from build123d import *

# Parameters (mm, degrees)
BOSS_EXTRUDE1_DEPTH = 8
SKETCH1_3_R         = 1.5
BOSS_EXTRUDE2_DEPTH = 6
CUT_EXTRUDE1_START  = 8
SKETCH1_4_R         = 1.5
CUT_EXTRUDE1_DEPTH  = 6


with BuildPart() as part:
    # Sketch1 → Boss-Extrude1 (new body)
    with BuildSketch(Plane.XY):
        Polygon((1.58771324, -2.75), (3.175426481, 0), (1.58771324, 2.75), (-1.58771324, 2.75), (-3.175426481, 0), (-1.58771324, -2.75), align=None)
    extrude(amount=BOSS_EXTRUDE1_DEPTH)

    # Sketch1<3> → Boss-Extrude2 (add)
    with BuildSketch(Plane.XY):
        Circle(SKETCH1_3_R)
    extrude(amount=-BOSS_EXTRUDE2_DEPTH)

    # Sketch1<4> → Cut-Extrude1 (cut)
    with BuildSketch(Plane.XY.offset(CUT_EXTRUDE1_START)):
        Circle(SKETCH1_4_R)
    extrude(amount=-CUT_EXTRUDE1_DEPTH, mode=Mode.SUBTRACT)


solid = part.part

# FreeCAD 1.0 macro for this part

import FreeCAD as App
import Part
import Sketcher
Q = App.Units.Quantity

doc = App.newDocument("Part")
params = doc.addObject("Spreadsheet::Sheet", "Params")
for row, (alias, value) in enumerate([
    ("pad1_length", "8 mm"),
    ("sketch2_diameter", "3 mm"),
    ("pad2_length", "6 mm"),
    ("sketch3_diameter", "3 mm"),
    ("pocket1_length", "6 mm"),
], start=1):
    params.set(f"A{row}", alias)
    params.set(f"B{row}", "=" + value)
    params.setAlias(f"B{row}", alias)

body = doc.addObject("PartDesign::Body", "Body")

sketch1 = body.newObject("Sketcher::SketchObject", "Sketch")
sketch1.AttachmentSupport = (doc.getObject("XY_Plane"), [""])
sketch1.MapMode = "FlatFace"
sketch1.addGeometry(Part.LineSegment(App.Vector(1.6, -2.8, 0), App.Vector(3.2, 0, 0)), False)
sketch1.addGeometry(Part.LineSegment(App.Vector(3.2, 0, 0), App.Vector(1.6, 2.8, 0)), False)
sketch1.addGeometry(Part.LineSegment(App.Vector(1.6, 2.8, 0), App.Vector(-1.6, 2.8, 0)), False)
sketch1.addGeometry(Part.LineSegment(App.Vector(-1.6, 2.8, 0), App.Vector(-3.2, 0, 0)), False)
sketch1.addGeometry(Part.LineSegment(App.Vector(-3.2, 0, 0), App.Vector(-1.6, -2.8, 0)), False)
sketch1.addGeometry(Part.LineSegment(App.Vector(-1.6, -2.8, 0), App.Vector(1.6, -2.8, 0)), False)
sketch1.addConstraint(Sketcher.Constraint("Coincident", 0, 2, 1, 1))
sketch1.addConstraint(Sketcher.Constraint("Coincident", 1, 2, 2, 1))
sketch1.addConstraint(Sketcher.Constraint("Coincident", 2, 2, 3, 1))
sketch1.addConstraint(Sketcher.Constraint("Coincident", 3, 2, 4, 1))
sketch1.addConstraint(Sketcher.Constraint("Coincident", 4, 2, 5, 1))
sketch1.addConstraint(Sketcher.Constraint("Coincident", 5, 2, 0, 1))
sketch1.addConstraint(Sketcher.Constraint("Horizontal", 2))
sketch1.addConstraint(Sketcher.Constraint("Horizontal", 5))
sketch1.addConstraint(Sketcher.Constraint("Symmetric", 0, 2, 3, 2, -1, 1))
sketch1.addConstraint(Sketcher.Constraint("Symmetric", 1, 2, 4, 2, -1, 1))
sketch1.addConstraint(Sketcher.Constraint("PointOnObject", 0, 2, -1))
sketch1.addConstraint(Sketcher.Constraint("Parallel", 0, 3))
sketch1.addConstraint(Sketcher.Constraint("Vertical", 2, 2, 4, 2))
sketch1.addConstraint(Sketcher.Constraint("Angle", 0, Q("60 deg")))
sketch1.addConstraint(Sketcher.Constraint("DistanceY", 4, 2, 2, 2, Q("5.5 mm")))
sketch1.addConstraint(Sketcher.Constraint("DistanceX", 2, 2, 2, 1, Q("3.175426 mm")))
pad1 = body.newObject("PartDesign::Pad", "Pad")
pad1.Profile = sketch1
pad1.setExpression("Length", "Params.pad1_length")

sketch2 = body.newObject("Sketcher::SketchObject", "Sketch001")
sketch2.AttachmentSupport = (doc.getObject("XY_Plane"), [""])
sketch2.MapMode = "FlatFace"
sketch2.addGeometry(Part.Circle(App.Vector(0, 0, 0), App.Vector(0, 0, 1), 1.5), False)
sketch2.addConstraint(Sketcher.Constraint("Coincident", 0, 3, -1, 1))
sketch2.addConstraint(Sketcher.Constraint("Diameter", 0, Q("3 mm")))
sketch2.setExpression("Constraints[1]", "Params.sketch2_diameter")
pad2 = body.newObject("PartDesign::Pad", "Pad001")
pad2.Profile = sketch2
pad2.setExpression("Length", "Params.pad2_length")
pad2.Reversed = True

sketch3 = body.newObject("Sketcher::SketchObject", "Sketch002")
sketch3.AttachmentSupport = (doc.getObject("XY_Plane"), [""])
sketch3.MapMode = "FlatFace"
sketch3.AttachmentOffset = App.Placement(App.Vector(0, 0, 8), App.Rotation())
sketch3.addGeometry(Part.Circle(App.Vector(0, 0, 0), App.Vector(0, 0, 1), 1.5), False)
sketch3.addConstraint(Sketcher.Constraint("Coincident", 0, 3, -1, 1))
sketch3.addConstraint(Sketcher.Constraint("Diameter", 0, Q("3 mm")))
sketch3.setExpression("Constraints[1]", "Params.sketch3_diameter")
pocket1 = body.newObject("PartDesign::Pocket", "Pocket")
pocket1.Profile = sketch3
pocket1.setExpression("Length", "Params.pocket1_length")

doc.recompute()
